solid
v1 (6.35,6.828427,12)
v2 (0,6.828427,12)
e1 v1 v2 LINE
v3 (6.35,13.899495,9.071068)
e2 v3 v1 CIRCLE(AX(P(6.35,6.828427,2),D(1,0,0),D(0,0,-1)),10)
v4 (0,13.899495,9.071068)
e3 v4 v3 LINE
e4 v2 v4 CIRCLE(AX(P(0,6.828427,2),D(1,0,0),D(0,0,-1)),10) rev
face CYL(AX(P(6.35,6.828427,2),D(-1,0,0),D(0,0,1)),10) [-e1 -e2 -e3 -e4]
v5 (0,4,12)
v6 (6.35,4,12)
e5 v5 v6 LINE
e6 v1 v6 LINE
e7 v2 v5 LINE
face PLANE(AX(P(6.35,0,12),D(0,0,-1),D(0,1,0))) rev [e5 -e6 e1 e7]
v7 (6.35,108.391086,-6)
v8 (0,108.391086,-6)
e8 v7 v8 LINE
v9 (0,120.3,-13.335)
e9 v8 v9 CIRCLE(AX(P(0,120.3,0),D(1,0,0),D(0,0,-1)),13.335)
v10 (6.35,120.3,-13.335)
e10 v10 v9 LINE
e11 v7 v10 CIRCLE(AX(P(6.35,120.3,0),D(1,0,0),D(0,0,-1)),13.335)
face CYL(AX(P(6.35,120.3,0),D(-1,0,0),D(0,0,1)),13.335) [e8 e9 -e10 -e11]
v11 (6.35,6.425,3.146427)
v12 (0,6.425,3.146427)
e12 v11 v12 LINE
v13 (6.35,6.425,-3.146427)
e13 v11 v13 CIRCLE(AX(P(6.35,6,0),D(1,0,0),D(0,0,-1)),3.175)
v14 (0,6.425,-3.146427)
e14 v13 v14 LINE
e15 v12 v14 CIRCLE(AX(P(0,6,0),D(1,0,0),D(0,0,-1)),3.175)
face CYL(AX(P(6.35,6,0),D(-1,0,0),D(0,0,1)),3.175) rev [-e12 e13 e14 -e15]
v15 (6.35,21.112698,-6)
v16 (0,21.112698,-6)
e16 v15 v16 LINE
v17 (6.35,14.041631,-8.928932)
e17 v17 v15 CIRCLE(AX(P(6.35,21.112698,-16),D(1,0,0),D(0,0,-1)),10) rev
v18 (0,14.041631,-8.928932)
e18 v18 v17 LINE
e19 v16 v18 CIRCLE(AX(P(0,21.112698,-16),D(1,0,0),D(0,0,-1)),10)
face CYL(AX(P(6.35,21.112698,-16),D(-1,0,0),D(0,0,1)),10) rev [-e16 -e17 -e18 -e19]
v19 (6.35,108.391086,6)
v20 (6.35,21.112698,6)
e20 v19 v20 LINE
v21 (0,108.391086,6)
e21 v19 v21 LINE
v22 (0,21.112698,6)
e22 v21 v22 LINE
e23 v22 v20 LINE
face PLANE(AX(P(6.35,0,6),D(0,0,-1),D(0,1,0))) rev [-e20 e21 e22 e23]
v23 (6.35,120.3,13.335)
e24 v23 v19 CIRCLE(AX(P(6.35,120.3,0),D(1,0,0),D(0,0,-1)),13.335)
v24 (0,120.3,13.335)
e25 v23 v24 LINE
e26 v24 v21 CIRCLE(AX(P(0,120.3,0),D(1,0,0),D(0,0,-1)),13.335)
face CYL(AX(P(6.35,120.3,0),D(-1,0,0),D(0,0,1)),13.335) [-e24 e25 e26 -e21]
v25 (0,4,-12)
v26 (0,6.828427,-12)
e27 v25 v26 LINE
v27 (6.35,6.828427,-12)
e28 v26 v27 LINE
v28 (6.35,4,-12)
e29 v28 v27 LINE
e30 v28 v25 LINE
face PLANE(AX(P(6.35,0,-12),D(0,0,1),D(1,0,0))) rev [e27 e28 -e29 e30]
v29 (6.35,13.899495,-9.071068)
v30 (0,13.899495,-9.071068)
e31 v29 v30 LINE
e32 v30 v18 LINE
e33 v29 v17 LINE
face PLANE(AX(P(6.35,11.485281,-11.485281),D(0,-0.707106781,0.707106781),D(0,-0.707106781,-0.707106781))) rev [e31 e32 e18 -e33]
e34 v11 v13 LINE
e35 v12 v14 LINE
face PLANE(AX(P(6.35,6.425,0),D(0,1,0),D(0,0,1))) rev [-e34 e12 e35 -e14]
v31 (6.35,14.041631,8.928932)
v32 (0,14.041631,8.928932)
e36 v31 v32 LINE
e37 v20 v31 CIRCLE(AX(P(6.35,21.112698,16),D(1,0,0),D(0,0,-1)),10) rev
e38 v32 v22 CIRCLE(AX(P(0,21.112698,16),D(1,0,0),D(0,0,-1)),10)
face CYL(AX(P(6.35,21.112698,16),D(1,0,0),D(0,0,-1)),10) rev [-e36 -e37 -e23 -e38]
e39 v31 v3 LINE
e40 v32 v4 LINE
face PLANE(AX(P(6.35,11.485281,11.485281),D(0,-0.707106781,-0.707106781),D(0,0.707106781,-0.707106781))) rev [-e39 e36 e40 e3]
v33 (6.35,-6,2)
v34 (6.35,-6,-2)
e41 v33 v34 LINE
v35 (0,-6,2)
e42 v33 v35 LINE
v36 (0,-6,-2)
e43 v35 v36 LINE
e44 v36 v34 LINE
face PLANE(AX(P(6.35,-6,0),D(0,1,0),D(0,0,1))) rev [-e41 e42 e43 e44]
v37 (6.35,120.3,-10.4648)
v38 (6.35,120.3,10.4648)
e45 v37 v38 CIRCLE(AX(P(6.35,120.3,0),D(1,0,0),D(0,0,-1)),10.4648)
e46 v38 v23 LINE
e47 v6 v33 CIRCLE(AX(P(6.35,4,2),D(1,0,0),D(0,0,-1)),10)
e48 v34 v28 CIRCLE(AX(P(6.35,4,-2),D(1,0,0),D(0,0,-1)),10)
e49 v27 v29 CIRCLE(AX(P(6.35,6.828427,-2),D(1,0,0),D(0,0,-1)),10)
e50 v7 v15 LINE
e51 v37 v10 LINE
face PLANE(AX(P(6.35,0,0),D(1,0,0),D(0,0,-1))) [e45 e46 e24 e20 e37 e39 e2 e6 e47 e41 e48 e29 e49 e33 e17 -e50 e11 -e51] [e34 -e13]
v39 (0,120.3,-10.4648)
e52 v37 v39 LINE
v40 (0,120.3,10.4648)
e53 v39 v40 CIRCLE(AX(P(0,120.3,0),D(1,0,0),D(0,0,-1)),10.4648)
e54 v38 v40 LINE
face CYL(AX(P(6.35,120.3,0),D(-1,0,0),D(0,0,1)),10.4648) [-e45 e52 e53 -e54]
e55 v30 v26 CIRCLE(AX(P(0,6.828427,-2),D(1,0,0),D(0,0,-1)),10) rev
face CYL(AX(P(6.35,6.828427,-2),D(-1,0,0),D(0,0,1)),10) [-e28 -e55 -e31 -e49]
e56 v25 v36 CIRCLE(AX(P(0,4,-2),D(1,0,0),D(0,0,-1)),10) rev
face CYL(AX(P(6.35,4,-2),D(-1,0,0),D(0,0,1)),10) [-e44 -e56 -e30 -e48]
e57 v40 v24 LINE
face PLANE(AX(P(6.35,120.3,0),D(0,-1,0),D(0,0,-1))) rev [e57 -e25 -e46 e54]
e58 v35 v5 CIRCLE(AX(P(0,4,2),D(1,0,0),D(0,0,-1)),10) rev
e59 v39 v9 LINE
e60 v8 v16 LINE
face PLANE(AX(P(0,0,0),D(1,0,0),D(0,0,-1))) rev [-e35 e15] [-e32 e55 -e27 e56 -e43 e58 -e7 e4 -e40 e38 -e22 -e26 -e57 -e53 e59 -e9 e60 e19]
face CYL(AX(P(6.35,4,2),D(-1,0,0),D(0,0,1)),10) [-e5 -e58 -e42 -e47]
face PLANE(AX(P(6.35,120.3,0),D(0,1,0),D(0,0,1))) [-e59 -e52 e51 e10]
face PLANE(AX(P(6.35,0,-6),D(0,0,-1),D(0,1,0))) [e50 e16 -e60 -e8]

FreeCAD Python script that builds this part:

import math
import FreeCAD as App
import Part
import Sketcher

V = App.Vector
Q = App.Units.Quantity


def edges_at(feature, points):
    """Names of the edges that pass closest to the given points."""
    edges = feature.Shape.Edges
    near = lambda p: min(range(len(edges)), key=lambda i: edges[i].distToShape(Part.Vertex(*p))[0])
    return sorted({f"Edge{near(p) + 1}" for p in points})

doc = App.newDocument("Part")
body = doc.addObject("PartDesign::Body", "Body")

# Sketch on YZ plane
sketch1 = body.newObject("Sketcher::SketchObject", "Sketch")
sketch1.AttachmentSupport = (doc.getObject("YZ_Plane"), [""])
sketch1.MapMode = "FlatFace"
sketch1.addGeometry(Part.LineSegment(V(108.391086, 6, 0), V(16.970563, 6, 0)), False)
sketch1.addGeometry(Part.LineSegment(V(16.970563, 6, 0), V(10.970563, 12, 0)), False)
sketch1.addGeometry(Part.LineSegment(V(10.970563, 12, 0), V(-6, 12, 0)), False)
sketch1.addGeometry(Part.LineSegment(V(-6, 12, 0), V(-6, -12, 0)), False)
sketch1.addGeometry(Part.LineSegment(V(-6, -12, 0), V(10.970563, -12, 0)), False)
sketch1.addGeometry(Part.LineSegment(V(10.970563, -12, 0), V(16.970563, -6, 0)), False)
sketch1.addGeometry(Part.LineSegment(V(16.970563, -6, 0), V(108.391086, -6, 0)), False)
sketch1.addGeometry(Part.ArcOfCircle(Part.Circle(V(120.3, 0, 0), V(0, 0, 1), 13.335), math.radians(-153.259924), math.radians(-90)), False)
sketch1.addGeometry(Part.LineSegment(V(120.3, -13.335, 0), V(120.3, -10.4648, 0)), False)
sketch1.addGeometry(Part.ArcOfCircle(Part.Circle(V(120.3, 0, 0), V(0, 0, 1), 10.4648), math.radians(-90), math.radians(90)), False)
sketch1.addGeometry(Part.LineSegment(V(120.3, 10.4648, 0), V(120.3, 13.335, 0)), False)
sketch1.addGeometry(Part.ArcOfCircle(Part.Circle(V(120.3, 0, 0), V(0, 0, 1), 13.335), math.radians(90), math.radians(153.259924)), False)
sketch1.addGeometry(Part.ArcOfCircle(Part.Circle(V(6, 0, 0), V(0, 0, 1), 3.175), math.radians(82.307396), math.radians(277.692604)), False)
sketch1.addGeometry(Part.LineSegment(V(6.425, 3.146427, 0), V(6.425, -3.146427, 0)), False)
sketch1.addConstraint(Sketcher.Constraint("Coincident", 0, 2, 1, 1))
sketch1.addConstraint(Sketcher.Constraint("Coincident", 1, 2, 2, 1))
sketch1.addConstraint(Sketcher.Constraint("Coincident", 2, 2, 3, 1))
sketch1.addConstraint(Sketcher.Constraint("Coincident", 3, 2, 4, 1))
sketch1.addConstraint(Sketcher.Constraint("Coincident", 4, 2, 5, 1))
sketch1.addConstraint(Sketcher.Constraint("Coincident", 5, 2, 6, 1))
sketch1.addConstraint(Sketcher.Constraint("Coincident", 6, 2, 7, 1))
sketch1.addConstraint(Sketcher.Constraint("Coincident", 7, 2, 8, 1))
sketch1.addConstraint(Sketcher.Constraint("Coincident", 8, 2, 9, 1))
sketch1.addConstraint(Sketcher.Constraint("Coincident", 9, 2, 10, 1))
sketch1.addConstraint(Sketcher.Constraint("Coincident", 10, 2, 11, 1))
sketch1.addConstraint(Sketcher.Constraint("Coincident", 11, 2, 0, 1))
sketch1.addConstraint(Sketcher.Constraint("Coincident", 12, 1, 13, 1))
sketch1.addConstraint(Sketcher.Constraint("Coincident", 13, 2, 12, 2))
sketch1.addConstraint(Sketcher.Constraint("Horizontal", 0))
sketch1.addConstraint(Sketcher.Constraint("Horizontal", 2))
sketch1.addConstraint(Sketcher.Constraint("Vertical", 3))
sketch1.addConstraint(Sketcher.Constraint("Horizontal", 4))
sketch1.addConstraint(Sketcher.Constraint("Horizontal", 6))
sketch1.addConstraint(Sketcher.Constraint("Vertical", 8))
sketch1.addConstraint(Sketcher.Constraint("Vertical", 10))
sketch1.addConstraint(Sketcher.Constraint("Vertical", 13))
sketch1.addConstraint(Sketcher.Constraint("Coincident", 9, 3, 7, 3))
sketch1.addConstraint(Sketcher.Constraint("Coincident", 11, 3, 7, 3))
sketch1.addConstraint(Sketcher.Constraint("Equal", 7, 11))
sketch1.addConstraint(Sketcher.Constraint("Symmetric", 1, 2, 4, 2, -1))
sketch1.addConstraint(Sketcher.Constraint("Symmetric", 0, 2, 5, 2, -1))
sketch1.addConstraint(Sketcher.Constraint("Symmetric", 8, 2, 9, 2, -1))
sketch1.addConstraint(Sketcher.Constraint("PointOnObject", 12, 3, -1))
sketch1.addConstraint(Sketcher.Constraint("Perpendicular", 1, 5))
sketch1.addConstraint(Sketcher.Constraint("Vertical", 11, 3, 7, 2))
sketch1.addConstraint(Sketcher.Constraint("Radius", 7, Q("0.525 in")))
sketch1.addConstraint(Sketcher.Constraint("Radius", 9, Q("0.412 in")))
sketch1.addConstraint(Sketcher.Constraint("Radius", 12, Q("0.125 in")))
sketch1.addConstraint(Sketcher.Constraint("DistanceX", 12, 3, 7, 3, Q("4.5 in")))
sketch1.addConstraint(Sketcher.Constraint("DistanceY", 3, 2, 3, 1, Q("24 mm")))
sketch1.addConstraint(Sketcher.Constraint("DistanceX", -1, 1, 7, 3, Q("120.3 mm")))
sketch1.addConstraint(Sketcher.Constraint("DistanceY", -1, 1, 0, 2, Q("6 mm")))
sketch1.addConstraint(Sketcher.Constraint("DistanceX", 2, 2, -1, 1, Q("6 mm")))
sketch1.addConstraint(Sketcher.Constraint("DistanceX", -1, 1, 12, 1, Q("6.425 mm")))
sketch1.addConstraint(Sketcher.Constraint("DistanceX", 0, 2, 0, 1, Q("91.420524 mm")))
pad1 = body.newObject("PartDesign::Pad", "Pad")
pad1.Profile = sketch1
pad1.Length = Q("0.25 in")
doc.recompute()

fillet = body.newObject("PartDesign::Fillet", "Fillet")
fillet.Base = (pad1, edges_at(pad1, [
    (3.175, 16.971, -6),
    (3.175, 10.971, -12),
    (3.175, -6, -12),
    (3.175, -6, 12),
    (3.175, 10.971, 12),
    (3.175, 16.971, 6),
]))
fillet.Radius = 10

doc.recompute()
